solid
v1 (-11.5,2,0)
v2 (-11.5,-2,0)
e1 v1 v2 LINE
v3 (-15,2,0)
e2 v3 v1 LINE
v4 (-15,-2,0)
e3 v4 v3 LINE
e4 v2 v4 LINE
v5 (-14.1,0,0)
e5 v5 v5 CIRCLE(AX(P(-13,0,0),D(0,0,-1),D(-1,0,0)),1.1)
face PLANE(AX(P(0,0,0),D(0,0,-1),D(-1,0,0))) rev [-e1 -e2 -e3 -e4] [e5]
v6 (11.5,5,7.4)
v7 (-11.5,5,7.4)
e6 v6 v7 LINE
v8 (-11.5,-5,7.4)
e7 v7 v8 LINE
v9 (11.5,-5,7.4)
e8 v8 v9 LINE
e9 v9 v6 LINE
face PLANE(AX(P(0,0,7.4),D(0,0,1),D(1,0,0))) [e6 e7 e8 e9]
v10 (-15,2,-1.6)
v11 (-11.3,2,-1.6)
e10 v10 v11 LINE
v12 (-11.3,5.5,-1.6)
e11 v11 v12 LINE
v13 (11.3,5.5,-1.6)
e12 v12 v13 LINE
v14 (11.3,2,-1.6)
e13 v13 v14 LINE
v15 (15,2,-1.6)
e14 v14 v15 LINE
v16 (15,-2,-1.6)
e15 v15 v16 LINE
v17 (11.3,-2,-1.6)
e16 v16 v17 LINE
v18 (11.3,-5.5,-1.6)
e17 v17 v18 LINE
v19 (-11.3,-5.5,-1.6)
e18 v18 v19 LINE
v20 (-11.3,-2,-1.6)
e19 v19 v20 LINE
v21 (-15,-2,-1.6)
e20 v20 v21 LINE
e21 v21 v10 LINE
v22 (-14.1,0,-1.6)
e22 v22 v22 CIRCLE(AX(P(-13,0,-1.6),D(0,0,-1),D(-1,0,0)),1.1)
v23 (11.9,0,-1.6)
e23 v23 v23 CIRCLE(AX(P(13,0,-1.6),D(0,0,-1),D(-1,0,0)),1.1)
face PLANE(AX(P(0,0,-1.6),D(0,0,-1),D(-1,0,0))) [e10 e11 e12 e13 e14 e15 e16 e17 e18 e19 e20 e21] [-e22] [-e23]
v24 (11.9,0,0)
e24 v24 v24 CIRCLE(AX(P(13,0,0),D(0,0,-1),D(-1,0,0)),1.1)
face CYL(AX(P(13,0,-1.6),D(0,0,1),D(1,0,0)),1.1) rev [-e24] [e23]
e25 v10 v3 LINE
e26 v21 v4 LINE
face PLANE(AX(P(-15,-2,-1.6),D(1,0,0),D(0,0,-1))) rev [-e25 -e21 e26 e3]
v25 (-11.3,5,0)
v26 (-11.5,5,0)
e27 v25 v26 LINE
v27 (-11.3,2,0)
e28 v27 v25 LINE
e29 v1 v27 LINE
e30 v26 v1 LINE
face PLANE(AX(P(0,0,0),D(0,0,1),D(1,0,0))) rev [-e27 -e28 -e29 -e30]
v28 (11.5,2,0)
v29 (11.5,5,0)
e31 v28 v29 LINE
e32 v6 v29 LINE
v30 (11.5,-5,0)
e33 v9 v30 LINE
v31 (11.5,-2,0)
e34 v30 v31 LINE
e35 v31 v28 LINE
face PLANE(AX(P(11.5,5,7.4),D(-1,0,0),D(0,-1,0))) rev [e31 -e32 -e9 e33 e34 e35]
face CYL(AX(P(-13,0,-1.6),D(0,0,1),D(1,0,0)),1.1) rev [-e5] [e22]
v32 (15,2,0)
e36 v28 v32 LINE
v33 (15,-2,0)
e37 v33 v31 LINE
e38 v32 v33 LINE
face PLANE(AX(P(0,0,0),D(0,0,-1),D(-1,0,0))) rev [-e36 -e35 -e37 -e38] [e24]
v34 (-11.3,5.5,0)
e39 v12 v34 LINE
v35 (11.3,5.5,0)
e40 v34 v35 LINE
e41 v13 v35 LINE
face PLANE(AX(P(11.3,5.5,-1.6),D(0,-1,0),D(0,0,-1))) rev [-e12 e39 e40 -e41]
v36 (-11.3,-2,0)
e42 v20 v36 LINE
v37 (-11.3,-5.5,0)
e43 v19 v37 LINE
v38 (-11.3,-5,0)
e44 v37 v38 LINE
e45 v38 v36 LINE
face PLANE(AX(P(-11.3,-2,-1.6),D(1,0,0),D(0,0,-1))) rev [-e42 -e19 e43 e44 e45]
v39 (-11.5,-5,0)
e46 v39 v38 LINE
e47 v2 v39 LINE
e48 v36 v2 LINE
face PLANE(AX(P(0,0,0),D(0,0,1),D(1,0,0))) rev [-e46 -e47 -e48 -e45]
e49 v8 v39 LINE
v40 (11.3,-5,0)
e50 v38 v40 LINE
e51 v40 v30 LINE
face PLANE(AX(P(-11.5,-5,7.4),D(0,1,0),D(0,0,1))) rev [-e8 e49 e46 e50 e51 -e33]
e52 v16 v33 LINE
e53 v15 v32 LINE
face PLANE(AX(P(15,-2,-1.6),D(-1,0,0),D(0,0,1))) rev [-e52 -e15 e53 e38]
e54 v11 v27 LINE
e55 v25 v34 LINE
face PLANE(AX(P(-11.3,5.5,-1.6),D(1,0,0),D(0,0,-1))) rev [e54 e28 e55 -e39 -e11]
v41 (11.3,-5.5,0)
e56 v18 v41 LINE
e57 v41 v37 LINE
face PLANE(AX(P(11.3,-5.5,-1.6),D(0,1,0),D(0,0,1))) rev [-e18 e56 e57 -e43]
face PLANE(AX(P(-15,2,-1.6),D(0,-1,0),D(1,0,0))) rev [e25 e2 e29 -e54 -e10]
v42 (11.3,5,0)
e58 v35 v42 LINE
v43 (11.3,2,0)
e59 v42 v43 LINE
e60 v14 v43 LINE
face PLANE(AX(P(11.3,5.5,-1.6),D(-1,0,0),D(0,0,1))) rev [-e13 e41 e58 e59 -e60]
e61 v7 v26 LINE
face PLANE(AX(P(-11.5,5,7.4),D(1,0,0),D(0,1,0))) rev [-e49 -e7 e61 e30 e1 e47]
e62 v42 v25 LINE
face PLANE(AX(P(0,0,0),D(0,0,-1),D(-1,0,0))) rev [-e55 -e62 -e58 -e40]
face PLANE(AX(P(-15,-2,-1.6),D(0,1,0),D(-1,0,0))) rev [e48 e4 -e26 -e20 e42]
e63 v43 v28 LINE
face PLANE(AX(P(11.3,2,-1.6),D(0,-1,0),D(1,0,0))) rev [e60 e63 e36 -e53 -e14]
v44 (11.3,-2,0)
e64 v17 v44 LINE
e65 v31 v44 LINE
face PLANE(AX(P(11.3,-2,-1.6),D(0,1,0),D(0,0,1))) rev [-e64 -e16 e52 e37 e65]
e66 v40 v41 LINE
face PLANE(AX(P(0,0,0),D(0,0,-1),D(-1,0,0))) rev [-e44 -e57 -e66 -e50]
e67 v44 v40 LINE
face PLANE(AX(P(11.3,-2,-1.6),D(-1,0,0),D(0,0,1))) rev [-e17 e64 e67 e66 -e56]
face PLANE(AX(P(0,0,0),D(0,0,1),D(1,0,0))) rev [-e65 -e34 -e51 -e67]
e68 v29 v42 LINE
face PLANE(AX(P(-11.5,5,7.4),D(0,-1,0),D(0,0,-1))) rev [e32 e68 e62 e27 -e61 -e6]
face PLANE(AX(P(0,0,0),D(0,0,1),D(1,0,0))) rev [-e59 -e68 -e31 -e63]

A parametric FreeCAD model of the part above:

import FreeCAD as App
import Part
import Sketcher

V = App.Vector

doc = App.newDocument("Part")
body = doc.addObject("PartDesign::Body", "Body")

# Sketch on XY plane
sketch1 = doc.addObject("Sketcher::SketchObject", "Sketch")
body.addObject(sketch1)
sketch1.AttachmentSupport = (doc.XY_Plane, [""])
sketch1.MapMode = "FlatFace"
sketch1.addGeometry([
    Part.LineSegment(V(-12, 5, 0), V(-12, -5, 0)),
    Part.LineSegment(V(-12, -5, 0), V(12, -5, 0)),
    Part.LineSegment(V(12, -5, 0), V(12, 5, 0)),
    Part.LineSegment(V(12, 5, 0), V(-12, 5, 0)),
], False)
sketch1.addConstraint([
    Sketcher.Constraint("Coincident", 0, 2, 1, 1),
    Sketcher.Constraint("Coincident", 1, 2, 2, 1),
    Sketcher.Constraint("Coincident", 2, 2, 3, 1),
    Sketcher.Constraint("Coincident", 3, 2, 0, 1),
    Sketcher.Constraint("Vertical", 0),
    Sketcher.Constraint("Horizontal", 1),
    Sketcher.Constraint("Vertical", 2),
    Sketcher.Constraint("Horizontal", 3),
    Sketcher.Constraint("Symmetric", 0, 2, 2, 2, -1, 1),
    Sketcher.Constraint("DistanceX", 1, 1, 1, 2, 23.0),
    Sketcher.Constraint("DistanceY", 0, 2, 0, 1, 10.0),
])
pad1 = doc.addObject("PartDesign::Pad", "Pad")
body.addObject(pad1)
pad1.Profile = sketch1
pad1.Length = 7.4

# Sketch on XY plane
sketch2 = doc.addObject("Sketcher::SketchObject", "Sketch001")
body.addObject(sketch2)
sketch2.AttachmentSupport = (doc.XY_Plane, [""])
sketch2.MapMode = "FlatFace"
sketch2.addGeometry([
    Part.LineSegment(V(11.3, -2, 0), V(11.3, -5.5, 0)),  # 0
    Part.LineSegment(V(11.3, -5.5, 0), V(-11.3, -5.5, 0)),  # 1
    Part.LineSegment(V(-11.3, -5.5, 0), V(-11.3, -2, 0)),  # 2
    Part.LineSegment(V(-11.3, -2, 0), V(-15, -2, 0)),  # 3
    Part.LineSegment(V(-15, -2, 0), V(-15, 2, 0)),  # 4
    Part.LineSegment(V(-15, 2, 0), V(-11.3, 2, 0)),  # 5
    Part.LineSegment(V(-11.3, 2, 0), V(-11.3, 5.5, 0)),  # 6
    Part.LineSegment(V(-11.3, 5.5, 0), V(11.3, 5.5, 0)),  # 7
    Part.LineSegment(V(11.3, 5.5, 0), V(11.3, 2, 0)),  # 8
    Part.LineSegment(V(11.3, 2, 0), V(15, 2, 0)),  # 9
    Part.LineSegment(V(15, 2, 0), V(15, -2, 0)),  # 10
    Part.LineSegment(V(15, -2, 0), V(11.3, -2, 0)),  # 11
    Part.Circle(V(13, 0, 0), V(0, 0, 1), 1.1),  # 12
    Part.Circle(V(-13, 0, 0), V(0, 0, 1), 1.1),  # 13
], False)
sketch2.addConstraint([
    Sketcher.Constraint("Coincident", 0, 2, 1, 1),
    Sketcher.Constraint("Coincident", 1, 2, 2, 1),
    Sketcher.Constraint("Coincident", 2, 2, 3, 1),
    Sketcher.Constraint("Coincident", 3, 2, 4, 1),
    Sketcher.Constraint("Coincident", 4, 2, 5, 1),
    Sketcher.Constraint("Coincident", 5, 2, 6, 1),
    Sketcher.Constraint("Coincident", 6, 2, 7, 1),
    Sketcher.Constraint("Coincident", 7, 2, 8, 1),
    Sketcher.Constraint("Coincident", 8, 2, 9, 1),
    Sketcher.Constraint("Coincident", 9, 2, 10, 1),
    Sketcher.Constraint("Coincident", 10, 2, 11, 1),
    Sketcher.Constraint("Coincident", 11, 2, 0, 1),
    Sketcher.Constraint("Vertical", 0),
    Sketcher.Constraint("Horizontal", 1),
    Sketcher.Constraint("Vertical", 2),
    Sketcher.Constraint("Horizontal", 3),
    Sketcher.Constraint("Vertical", 4),
    Sketcher.Constraint("Horizontal", 5),
    Sketcher.Constraint("Vertical", 6),
    Sketcher.Constraint("Horizontal", 7),
    Sketcher.Constraint("Vertical", 8),
    Sketcher.Constraint("Horizontal", 9),
    Sketcher.Constraint("Vertical", 10),
    Sketcher.Constraint("Horizontal", 11),
    Sketcher.Constraint("Equal", 12, 13),
    Sketcher.Constraint("Symmetric", 12, 3, 13, 3, -1, 1),
    Sketcher.Constraint("Symmetric", 0, 2, 6, 2, -1, 1),
    Sketcher.Constraint("Symmetric", 2, 2, 8, 2, -1, 1),
    Sketcher.Constraint("Symmetric", 4, 2, 10, 2, -1, 1),
    Sketcher.Constraint("Symmetric", 5, 2, 8, 2, -2),
    Sketcher.Constraint("PointOnObject", 12, 3, -1),
    Sketcher.Constraint("Diameter", 12, 2.2),
    Sketcher.Constraint("DistanceY", 4, 1, 4, 2, 4.0),
    Sketcher.Constraint("DistanceX", 1, 2, 1, 1, 22.6),
    Sketcher.Constraint("DistanceX", 3, 2, 3, 1, 3.7),
    Sketcher.Constraint("DistanceY", 0, 2, 0, 1, 3.5),
    Sketcher.Constraint("DistanceX", -1, 1, 12, 3, 13.0),
])
pad2 = doc.addObject("PartDesign::Pad", "Pad001")
body.addObject(pad2)
pad2.Profile = sketch2
pad2.Length = 1.6
pad2.Reversed = True

doc.recompute()
